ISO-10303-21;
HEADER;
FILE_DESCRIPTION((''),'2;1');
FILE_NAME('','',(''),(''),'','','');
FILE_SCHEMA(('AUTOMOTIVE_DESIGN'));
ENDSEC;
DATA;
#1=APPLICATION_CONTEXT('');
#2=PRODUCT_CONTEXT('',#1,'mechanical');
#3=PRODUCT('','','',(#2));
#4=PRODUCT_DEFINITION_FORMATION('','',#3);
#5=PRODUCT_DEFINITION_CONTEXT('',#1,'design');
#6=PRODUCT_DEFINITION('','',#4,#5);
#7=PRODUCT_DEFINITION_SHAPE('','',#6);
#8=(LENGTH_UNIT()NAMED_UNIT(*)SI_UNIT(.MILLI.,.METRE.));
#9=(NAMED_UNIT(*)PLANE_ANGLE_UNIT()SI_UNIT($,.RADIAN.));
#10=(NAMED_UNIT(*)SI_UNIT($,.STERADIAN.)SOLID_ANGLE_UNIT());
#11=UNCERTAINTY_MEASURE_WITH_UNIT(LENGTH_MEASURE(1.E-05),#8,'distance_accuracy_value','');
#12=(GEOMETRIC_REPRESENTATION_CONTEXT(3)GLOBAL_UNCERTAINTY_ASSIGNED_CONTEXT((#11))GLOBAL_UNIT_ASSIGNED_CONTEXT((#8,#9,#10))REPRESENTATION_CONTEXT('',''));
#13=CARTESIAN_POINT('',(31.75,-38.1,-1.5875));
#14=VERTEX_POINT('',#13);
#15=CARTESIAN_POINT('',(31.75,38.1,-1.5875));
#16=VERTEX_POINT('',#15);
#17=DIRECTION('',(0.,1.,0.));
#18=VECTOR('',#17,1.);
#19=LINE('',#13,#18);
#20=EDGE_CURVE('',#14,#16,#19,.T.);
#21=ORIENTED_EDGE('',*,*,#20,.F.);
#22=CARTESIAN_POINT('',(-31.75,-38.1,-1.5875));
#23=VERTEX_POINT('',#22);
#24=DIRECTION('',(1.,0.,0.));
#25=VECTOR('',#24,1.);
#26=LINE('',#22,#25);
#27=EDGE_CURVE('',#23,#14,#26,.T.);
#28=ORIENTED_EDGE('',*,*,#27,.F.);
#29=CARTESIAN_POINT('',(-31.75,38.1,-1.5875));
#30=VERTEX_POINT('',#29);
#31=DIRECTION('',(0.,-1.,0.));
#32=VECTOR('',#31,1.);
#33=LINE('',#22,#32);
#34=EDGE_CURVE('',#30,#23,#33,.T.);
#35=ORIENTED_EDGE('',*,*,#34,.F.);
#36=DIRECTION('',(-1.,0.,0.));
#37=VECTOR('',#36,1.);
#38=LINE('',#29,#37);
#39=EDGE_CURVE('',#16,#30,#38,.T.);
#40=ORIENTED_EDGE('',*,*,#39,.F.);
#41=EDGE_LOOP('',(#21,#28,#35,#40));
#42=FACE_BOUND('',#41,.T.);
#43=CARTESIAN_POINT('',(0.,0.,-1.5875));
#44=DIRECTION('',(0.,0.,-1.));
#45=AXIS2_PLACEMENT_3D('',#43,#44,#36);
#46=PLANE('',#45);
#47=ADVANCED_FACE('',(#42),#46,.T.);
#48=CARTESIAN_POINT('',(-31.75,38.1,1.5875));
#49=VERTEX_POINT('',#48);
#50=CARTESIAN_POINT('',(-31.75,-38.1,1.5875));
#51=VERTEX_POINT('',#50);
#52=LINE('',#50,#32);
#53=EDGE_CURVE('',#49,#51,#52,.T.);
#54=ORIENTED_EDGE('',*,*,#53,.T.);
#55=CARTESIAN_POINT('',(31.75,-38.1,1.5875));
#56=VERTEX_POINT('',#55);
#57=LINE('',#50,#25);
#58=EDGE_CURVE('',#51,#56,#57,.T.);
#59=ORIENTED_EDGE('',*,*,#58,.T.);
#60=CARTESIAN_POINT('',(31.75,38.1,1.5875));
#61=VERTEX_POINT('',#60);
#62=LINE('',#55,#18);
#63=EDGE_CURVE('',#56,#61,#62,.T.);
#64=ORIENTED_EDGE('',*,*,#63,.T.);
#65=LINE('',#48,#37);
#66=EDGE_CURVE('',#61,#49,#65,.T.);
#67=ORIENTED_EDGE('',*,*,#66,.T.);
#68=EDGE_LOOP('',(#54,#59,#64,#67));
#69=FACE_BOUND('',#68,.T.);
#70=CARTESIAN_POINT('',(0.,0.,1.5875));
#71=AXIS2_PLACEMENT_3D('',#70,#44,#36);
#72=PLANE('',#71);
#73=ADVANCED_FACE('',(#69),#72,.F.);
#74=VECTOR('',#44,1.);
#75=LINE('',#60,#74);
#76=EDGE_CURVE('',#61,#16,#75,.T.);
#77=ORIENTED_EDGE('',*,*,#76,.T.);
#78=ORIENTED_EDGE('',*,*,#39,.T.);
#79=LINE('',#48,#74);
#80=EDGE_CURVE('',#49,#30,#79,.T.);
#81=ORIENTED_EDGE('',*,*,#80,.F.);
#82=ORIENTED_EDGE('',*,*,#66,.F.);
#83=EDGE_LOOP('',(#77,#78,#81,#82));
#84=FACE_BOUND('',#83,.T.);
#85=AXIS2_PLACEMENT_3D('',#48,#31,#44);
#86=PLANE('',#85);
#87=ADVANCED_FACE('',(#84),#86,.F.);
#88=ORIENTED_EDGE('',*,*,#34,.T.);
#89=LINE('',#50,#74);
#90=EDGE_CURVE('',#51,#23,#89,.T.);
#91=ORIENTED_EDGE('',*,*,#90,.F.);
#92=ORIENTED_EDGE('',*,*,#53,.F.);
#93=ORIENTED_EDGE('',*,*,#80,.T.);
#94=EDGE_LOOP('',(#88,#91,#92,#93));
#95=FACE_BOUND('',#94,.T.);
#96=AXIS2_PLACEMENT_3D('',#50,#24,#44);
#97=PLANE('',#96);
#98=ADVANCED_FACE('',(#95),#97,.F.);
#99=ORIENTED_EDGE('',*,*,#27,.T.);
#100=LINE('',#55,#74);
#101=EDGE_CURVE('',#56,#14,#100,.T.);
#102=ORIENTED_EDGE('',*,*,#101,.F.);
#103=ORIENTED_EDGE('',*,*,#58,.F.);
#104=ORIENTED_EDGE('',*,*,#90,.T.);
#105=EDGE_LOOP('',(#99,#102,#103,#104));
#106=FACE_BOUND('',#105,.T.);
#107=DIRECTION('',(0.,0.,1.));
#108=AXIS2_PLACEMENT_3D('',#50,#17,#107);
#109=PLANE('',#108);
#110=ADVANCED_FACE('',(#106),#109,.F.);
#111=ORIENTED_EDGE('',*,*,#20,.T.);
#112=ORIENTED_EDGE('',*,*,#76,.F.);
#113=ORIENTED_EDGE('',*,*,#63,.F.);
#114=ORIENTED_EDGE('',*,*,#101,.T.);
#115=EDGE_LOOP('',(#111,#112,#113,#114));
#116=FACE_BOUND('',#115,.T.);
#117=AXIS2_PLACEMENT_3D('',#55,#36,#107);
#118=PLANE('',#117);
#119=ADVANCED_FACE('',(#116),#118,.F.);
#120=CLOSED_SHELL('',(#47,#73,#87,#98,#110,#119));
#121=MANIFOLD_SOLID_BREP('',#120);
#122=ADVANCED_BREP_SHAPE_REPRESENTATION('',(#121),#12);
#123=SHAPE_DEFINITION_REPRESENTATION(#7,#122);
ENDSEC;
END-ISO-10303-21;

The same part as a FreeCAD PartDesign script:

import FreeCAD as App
import Part
import Sketcher
Q = App.Units.Quantity

doc = App.newDocument("Part")
body = doc.addObject("PartDesign::Body", "Body")

# Sketch on XY plane
sketch1 = body.newObject("Sketcher::SketchObject", "Sketch")
sketch1.AttachmentSupport = (doc.getObject("XY_Plane"), [""])
sketch1.MapMode = "FlatFace"
sketch1.addGeometry(Part.LineSegment(App.Vector(-32, 38, 0), App.Vector(-32, -38, 0)), False)
sketch1.addGeometry(Part.LineSegment(App.Vector(-32, -38, 0), App.Vector(32, -38, 0)), False)
sketch1.addGeometry(Part.LineSegment(App.Vector(32, -38, 0), App.Vector(32, 38, 0)), False)
sketch1.addGeometry(Part.LineSegment(App.Vector(32, 38, 0), App.Vector(-32, 38, 0)), False)
sketch1.addConstraint(Sketcher.Constraint("Coincident", 0, 2, 1, 1))
sketch1.addConstraint(Sketcher.Constraint("Coincident", 1, 2, 2, 1))
sketch1.addConstraint(Sketcher.Constraint("Coincident", 2, 2, 3, 1))
sketch1.addConstraint(Sketcher.Constraint("Coincident", 3, 2, 0, 1))
sketch1.addConstraint(Sketcher.Constraint("Vertical", 0))
sketch1.addConstraint(Sketcher.Constraint("Horizontal", 1))
sketch1.addConstraint(Sketcher.Constraint("Vertical", 2))
sketch1.addConstraint(Sketcher.Constraint("Horizontal", 3))
sketch1.addConstraint(Sketcher.Constraint("Symmetric", 0, 2, 2, 2, -1, 1))
sketch1.addConstraint(Sketcher.Constraint("DistanceY", 0, 2, 0, 1, Q("3 in")))
sketch1.addConstraint(Sketcher.Constraint("DistanceX", 1, 1, 1, 2, Q("2.5 in")))
pad1 = body.newObject("PartDesign::Pad", "Pad")
pad1.Profile = sketch1
pad1.Length = Q("0.125 in")
pad1.Midplane = True

doc.recompute()
